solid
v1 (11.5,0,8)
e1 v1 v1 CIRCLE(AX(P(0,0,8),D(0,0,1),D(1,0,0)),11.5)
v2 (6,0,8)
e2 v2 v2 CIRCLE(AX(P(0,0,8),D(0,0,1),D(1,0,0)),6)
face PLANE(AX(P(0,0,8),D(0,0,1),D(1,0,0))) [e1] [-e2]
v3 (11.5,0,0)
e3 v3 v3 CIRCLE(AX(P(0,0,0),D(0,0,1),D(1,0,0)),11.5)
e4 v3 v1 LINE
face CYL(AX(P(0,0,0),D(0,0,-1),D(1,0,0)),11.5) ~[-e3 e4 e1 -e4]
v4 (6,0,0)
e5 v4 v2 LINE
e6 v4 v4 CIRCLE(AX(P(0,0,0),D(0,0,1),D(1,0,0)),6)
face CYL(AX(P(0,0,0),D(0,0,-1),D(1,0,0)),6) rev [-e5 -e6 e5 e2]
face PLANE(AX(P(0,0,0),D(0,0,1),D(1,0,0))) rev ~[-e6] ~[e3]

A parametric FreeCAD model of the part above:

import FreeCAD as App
import Part
import Sketcher

doc = App.newDocument("Part")
body = doc.addObject("PartDesign::Body", "Body")

# Sketch on XY plane
sketch1 = doc.addObject("Sketcher::SketchObject", "Sketch")
body.addObject(sketch1)
sketch1.AttachmentSupport = (doc.XY_Plane, [""])
sketch1.MapMode = "FlatFace"
sketch1.addGeometry([
    Part.Circle(App.Vector(0, 0, 0), App.Vector(0, 0, 1), 11.5),
    Part.Circle(App.Vector(0, 0, 0), App.Vector(0, 0, 1), 6),
], False)
sketch1.addConstraint([
    Sketcher.Constraint("Coincident", 0, 3, -1, 1),
    Sketcher.Constraint("Coincident", 1, 3, -1, 1),
    Sketcher.Constraint("Diameter", 0, 23.0),
    Sketcher.Constraint("Diameter", 1, 12.0),
])
pad1 = doc.addObject("PartDesign::Pad", "Pad")
body.addObject(pad1)
pad1.Profile = sketch1
pad1.Length = 8

doc.recompute()
